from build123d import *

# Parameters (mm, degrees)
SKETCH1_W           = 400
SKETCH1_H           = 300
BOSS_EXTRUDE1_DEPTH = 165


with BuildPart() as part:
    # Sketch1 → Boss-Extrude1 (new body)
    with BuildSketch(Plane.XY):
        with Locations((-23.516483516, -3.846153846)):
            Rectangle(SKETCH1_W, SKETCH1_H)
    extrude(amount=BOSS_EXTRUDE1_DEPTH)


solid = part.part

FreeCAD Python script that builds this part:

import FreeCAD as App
import Part
import Sketcher
from FreeCAD import Vector

doc = App.newDocument("Part")
params = doc.addObject("Spreadsheet::Sheet", "Params")
for row, (alias, value) in enumerate([
    ("sketch1_width", "400 mm"),
    ("sketch1_height", "300 mm"),
    ("pad1_length", "165 mm"),
], start=1):
    params.set(f"A{row}", alias)
    params.set(f"B{row}", "=" + value)
    params.setAlias(f"B{row}", alias)

body = doc.addObject("PartDesign::Body", "Body")

sketch1 = body.newObject("Sketcher::SketchObject", "Sketch")
sketch1.AttachmentSupport = (doc.getObject("XY_Plane"), [""])
sketch1.MapMode = "FlatFace"
sketch1.addGeometry(Part.LineSegment(Vector(-223.516484, 146.153846, 0), Vector(-223.516484, -153.846154, 0)), False)
sketch1.addGeometry(Part.LineSegment(Vector(-223.516484, -153.846154, 0), Vector(176.483516, -153.846154, 0)), False)
sketch1.addGeometry(Part.LineSegment(Vector(176.483516, -153.846154, 0), Vector(176.483516, 146.153846, 0)), False)
sketch1.addGeometry(Part.LineSegment(Vector(176.483516, 146.153846, 0), Vector(-223.516484, 146.153846, 0)), False)
sketch1.addConstraint(Sketcher.Constraint("Coincident", 0, 2, 1, 1))
sketch1.addConstraint(Sketcher.Constraint("Coincident", 1, 2, 2, 1))
sketch1.addConstraint(Sketcher.Constraint("Coincident", 2, 2, 3, 1))
sketch1.addConstraint(Sketcher.Constraint("Coincident", 3, 2, 0, 1))
sketch1.addConstraint(Sketcher.Constraint("Vertical", 0))
sketch1.addConstraint(Sketcher.Constraint("Horizontal", 1))
sketch1.addConstraint(Sketcher.Constraint("Vertical", 2))
sketch1.addConstraint(Sketcher.Constraint("Horizontal", 3))
sketch1.addConstraint(Sketcher.Constraint("DistanceX", 1, 1, 1, 2, 400.0))
sketch1.addConstraint(Sketcher.Constraint("DistanceY", 0, 2, 0, 1, 300.0))
sketch1.addConstraint(Sketcher.Constraint("DistanceX", 0, 2, -1, 1, 223.516484))
sketch1.addConstraint(Sketcher.Constraint("DistanceY", 0, 2, -1, 1, 153.846154))
sketch1.setExpression("Constraints[8]", "Params.sketch1_width")
sketch1.setExpression("Constraints[9]", "Params.sketch1_height")
pad1 = body.newObject("PartDesign::Pad", "Pad")
pad1.Profile = sketch1
pad1.setExpression("Length", "Params.pad1_length")

doc.recompute()
